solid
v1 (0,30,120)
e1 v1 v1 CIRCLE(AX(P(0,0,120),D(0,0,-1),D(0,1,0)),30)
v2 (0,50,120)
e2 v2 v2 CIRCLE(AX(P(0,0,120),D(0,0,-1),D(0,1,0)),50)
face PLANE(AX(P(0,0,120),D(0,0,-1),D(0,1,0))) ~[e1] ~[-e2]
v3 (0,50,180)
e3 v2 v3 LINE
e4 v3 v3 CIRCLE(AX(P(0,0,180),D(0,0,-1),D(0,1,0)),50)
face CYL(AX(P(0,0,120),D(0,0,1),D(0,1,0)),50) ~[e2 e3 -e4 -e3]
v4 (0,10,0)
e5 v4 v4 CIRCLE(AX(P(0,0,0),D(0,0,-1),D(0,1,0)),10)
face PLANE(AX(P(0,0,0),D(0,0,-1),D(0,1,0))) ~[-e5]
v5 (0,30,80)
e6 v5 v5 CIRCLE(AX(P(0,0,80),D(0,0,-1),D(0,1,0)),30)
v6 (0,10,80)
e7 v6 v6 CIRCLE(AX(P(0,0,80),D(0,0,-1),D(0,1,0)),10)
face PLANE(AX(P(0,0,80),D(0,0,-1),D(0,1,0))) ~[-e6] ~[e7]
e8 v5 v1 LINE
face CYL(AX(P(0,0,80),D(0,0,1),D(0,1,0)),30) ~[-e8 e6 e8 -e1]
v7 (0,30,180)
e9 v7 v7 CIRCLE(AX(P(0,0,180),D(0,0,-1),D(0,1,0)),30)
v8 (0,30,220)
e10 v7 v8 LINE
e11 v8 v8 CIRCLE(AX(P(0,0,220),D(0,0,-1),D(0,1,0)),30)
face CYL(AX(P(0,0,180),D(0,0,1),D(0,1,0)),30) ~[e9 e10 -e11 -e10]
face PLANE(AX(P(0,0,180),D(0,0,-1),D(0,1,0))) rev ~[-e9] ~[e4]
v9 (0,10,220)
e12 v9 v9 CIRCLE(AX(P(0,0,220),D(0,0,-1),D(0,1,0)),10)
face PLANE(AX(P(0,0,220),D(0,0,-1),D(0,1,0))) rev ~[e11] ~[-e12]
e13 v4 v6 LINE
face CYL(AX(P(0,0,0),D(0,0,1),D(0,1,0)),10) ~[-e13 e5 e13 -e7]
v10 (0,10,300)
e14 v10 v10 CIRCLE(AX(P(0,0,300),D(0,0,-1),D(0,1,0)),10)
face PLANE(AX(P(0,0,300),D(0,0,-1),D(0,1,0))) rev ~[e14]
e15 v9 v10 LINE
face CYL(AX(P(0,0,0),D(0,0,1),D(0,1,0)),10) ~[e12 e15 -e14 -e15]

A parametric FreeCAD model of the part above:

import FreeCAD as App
import Part
import Sketcher

doc = App.newDocument("Part")
body = doc.addObject("PartDesign::Body", "Body")

sketch1 = body.newObject("Sketcher::SketchObject", "Sketch")
sketch1.AttachmentSupport = (doc.getObject("YZ_Plane"), [""])
sketch1.MapMode = "FlatFace"
sketch1.addGeometry([
    Part.LineSegment(App.Vector(0, 0, 0), App.Vector(10, 0, 0)),
    Part.LineSegment(App.Vector(10, 0, 0), App.Vector(10, 80, 0)),
    Part.LineSegment(App.Vector(10, 80, 0), App.Vector(30, 80, 0)),
    Part.LineSegment(App.Vector(30, 80, 0), App.Vector(30, 120, 0)),
    Part.LineSegment(App.Vector(30, 120, 0), App.Vector(50, 120, 0)),
    Part.LineSegment(App.Vector(50, 120, 0), App.Vector(50, 180, 0)),
    Part.LineSegment(App.Vector(50, 180, 0), App.Vector(30, 180, 0)),
    Part.LineSegment(App.Vector(30, 180, 0), App.Vector(30, 220, 0)),
    Part.LineSegment(App.Vector(30, 220, 0), App.Vector(10, 220, 0)),
    Part.LineSegment(App.Vector(10, 220, 0), App.Vector(10, 300, 0)),
    Part.LineSegment(App.Vector(10, 300, 0), App.Vector(0, 300, 0)),
    Part.LineSegment(App.Vector(0, 300, 0), App.Vector(0, 0, 0)),
], False)
sketch1.addConstraint([
    Sketcher.Constraint("Coincident", 0, 2, 1, 1),
    Sketcher.Constraint("Coincident", 1, 2, 2, 1),
    Sketcher.Constraint("Coincident", 2, 2, 3, 1),
    Sketcher.Constraint("Coincident", 3, 2, 4, 1),
    Sketcher.Constraint("Coincident", 4, 2, 5, 1),
    Sketcher.Constraint("Coincident", 5, 2, 6, 1),
    Sketcher.Constraint("Coincident", 6, 2, 7, 1),
    Sketcher.Constraint("Coincident", 7, 2, 8, 1),
    Sketcher.Constraint("Coincident", 8, 2, 9, 1),
    Sketcher.Constraint("Coincident", 9, 2, 10, 1),
    Sketcher.Constraint("Coincident", 10, 2, 11, 1),
    Sketcher.Constraint("Coincident", 11, 2, 0, 1),
    Sketcher.Constraint("Horizontal", 0),
    Sketcher.Constraint("Vertical", 1),
    Sketcher.Constraint("Horizontal", 2),
    Sketcher.Constraint("Vertical", 3),
    Sketcher.Constraint("Horizontal", 4),
    Sketcher.Constraint("Vertical", 5),
    Sketcher.Constraint("Horizontal", 6),
    Sketcher.Constraint("Vertical", 7),
    Sketcher.Constraint("Horizontal", 8),
    Sketcher.Constraint("Vertical", 9),
    Sketcher.Constraint("Horizontal", 10),
    Sketcher.Constraint("Vertical", 11),
    Sketcher.Constraint("Coincident", 11, 2, -1, 1),
    Sketcher.Constraint("Vertical", 3, 2, 6, 2),
    Sketcher.Constraint("Vertical", 1, 2, 8, 2),
    Sketcher.Constraint("Equal", 2, 4),
    Sketcher.Constraint("Equal", 3, 7),
    Sketcher.Constraint("Equal", 1, 9),
    Sketcher.Constraint("DistanceX", 0, 1, 0, 2, 10.0),
    Sketcher.Constraint("DistanceY", 1, 1, 1, 2, 80.0),
    Sketcher.Constraint("DistanceY", 3, 1, 3, 2, 40.0),
    Sketcher.Constraint("DistanceY", 11, 2, 11, 1, 300.0),
    Sketcher.Constraint("DistanceX", -1, 1, 2, 2, 30.0),
])
revolution = body.newObject("PartDesign::Revolution", "Revolution")
revolution.Profile = sketch1
revolution.ReferenceAxis = (sketch1, ["V_Axis"])
revolution.Angle = 360

doc.recompute()
